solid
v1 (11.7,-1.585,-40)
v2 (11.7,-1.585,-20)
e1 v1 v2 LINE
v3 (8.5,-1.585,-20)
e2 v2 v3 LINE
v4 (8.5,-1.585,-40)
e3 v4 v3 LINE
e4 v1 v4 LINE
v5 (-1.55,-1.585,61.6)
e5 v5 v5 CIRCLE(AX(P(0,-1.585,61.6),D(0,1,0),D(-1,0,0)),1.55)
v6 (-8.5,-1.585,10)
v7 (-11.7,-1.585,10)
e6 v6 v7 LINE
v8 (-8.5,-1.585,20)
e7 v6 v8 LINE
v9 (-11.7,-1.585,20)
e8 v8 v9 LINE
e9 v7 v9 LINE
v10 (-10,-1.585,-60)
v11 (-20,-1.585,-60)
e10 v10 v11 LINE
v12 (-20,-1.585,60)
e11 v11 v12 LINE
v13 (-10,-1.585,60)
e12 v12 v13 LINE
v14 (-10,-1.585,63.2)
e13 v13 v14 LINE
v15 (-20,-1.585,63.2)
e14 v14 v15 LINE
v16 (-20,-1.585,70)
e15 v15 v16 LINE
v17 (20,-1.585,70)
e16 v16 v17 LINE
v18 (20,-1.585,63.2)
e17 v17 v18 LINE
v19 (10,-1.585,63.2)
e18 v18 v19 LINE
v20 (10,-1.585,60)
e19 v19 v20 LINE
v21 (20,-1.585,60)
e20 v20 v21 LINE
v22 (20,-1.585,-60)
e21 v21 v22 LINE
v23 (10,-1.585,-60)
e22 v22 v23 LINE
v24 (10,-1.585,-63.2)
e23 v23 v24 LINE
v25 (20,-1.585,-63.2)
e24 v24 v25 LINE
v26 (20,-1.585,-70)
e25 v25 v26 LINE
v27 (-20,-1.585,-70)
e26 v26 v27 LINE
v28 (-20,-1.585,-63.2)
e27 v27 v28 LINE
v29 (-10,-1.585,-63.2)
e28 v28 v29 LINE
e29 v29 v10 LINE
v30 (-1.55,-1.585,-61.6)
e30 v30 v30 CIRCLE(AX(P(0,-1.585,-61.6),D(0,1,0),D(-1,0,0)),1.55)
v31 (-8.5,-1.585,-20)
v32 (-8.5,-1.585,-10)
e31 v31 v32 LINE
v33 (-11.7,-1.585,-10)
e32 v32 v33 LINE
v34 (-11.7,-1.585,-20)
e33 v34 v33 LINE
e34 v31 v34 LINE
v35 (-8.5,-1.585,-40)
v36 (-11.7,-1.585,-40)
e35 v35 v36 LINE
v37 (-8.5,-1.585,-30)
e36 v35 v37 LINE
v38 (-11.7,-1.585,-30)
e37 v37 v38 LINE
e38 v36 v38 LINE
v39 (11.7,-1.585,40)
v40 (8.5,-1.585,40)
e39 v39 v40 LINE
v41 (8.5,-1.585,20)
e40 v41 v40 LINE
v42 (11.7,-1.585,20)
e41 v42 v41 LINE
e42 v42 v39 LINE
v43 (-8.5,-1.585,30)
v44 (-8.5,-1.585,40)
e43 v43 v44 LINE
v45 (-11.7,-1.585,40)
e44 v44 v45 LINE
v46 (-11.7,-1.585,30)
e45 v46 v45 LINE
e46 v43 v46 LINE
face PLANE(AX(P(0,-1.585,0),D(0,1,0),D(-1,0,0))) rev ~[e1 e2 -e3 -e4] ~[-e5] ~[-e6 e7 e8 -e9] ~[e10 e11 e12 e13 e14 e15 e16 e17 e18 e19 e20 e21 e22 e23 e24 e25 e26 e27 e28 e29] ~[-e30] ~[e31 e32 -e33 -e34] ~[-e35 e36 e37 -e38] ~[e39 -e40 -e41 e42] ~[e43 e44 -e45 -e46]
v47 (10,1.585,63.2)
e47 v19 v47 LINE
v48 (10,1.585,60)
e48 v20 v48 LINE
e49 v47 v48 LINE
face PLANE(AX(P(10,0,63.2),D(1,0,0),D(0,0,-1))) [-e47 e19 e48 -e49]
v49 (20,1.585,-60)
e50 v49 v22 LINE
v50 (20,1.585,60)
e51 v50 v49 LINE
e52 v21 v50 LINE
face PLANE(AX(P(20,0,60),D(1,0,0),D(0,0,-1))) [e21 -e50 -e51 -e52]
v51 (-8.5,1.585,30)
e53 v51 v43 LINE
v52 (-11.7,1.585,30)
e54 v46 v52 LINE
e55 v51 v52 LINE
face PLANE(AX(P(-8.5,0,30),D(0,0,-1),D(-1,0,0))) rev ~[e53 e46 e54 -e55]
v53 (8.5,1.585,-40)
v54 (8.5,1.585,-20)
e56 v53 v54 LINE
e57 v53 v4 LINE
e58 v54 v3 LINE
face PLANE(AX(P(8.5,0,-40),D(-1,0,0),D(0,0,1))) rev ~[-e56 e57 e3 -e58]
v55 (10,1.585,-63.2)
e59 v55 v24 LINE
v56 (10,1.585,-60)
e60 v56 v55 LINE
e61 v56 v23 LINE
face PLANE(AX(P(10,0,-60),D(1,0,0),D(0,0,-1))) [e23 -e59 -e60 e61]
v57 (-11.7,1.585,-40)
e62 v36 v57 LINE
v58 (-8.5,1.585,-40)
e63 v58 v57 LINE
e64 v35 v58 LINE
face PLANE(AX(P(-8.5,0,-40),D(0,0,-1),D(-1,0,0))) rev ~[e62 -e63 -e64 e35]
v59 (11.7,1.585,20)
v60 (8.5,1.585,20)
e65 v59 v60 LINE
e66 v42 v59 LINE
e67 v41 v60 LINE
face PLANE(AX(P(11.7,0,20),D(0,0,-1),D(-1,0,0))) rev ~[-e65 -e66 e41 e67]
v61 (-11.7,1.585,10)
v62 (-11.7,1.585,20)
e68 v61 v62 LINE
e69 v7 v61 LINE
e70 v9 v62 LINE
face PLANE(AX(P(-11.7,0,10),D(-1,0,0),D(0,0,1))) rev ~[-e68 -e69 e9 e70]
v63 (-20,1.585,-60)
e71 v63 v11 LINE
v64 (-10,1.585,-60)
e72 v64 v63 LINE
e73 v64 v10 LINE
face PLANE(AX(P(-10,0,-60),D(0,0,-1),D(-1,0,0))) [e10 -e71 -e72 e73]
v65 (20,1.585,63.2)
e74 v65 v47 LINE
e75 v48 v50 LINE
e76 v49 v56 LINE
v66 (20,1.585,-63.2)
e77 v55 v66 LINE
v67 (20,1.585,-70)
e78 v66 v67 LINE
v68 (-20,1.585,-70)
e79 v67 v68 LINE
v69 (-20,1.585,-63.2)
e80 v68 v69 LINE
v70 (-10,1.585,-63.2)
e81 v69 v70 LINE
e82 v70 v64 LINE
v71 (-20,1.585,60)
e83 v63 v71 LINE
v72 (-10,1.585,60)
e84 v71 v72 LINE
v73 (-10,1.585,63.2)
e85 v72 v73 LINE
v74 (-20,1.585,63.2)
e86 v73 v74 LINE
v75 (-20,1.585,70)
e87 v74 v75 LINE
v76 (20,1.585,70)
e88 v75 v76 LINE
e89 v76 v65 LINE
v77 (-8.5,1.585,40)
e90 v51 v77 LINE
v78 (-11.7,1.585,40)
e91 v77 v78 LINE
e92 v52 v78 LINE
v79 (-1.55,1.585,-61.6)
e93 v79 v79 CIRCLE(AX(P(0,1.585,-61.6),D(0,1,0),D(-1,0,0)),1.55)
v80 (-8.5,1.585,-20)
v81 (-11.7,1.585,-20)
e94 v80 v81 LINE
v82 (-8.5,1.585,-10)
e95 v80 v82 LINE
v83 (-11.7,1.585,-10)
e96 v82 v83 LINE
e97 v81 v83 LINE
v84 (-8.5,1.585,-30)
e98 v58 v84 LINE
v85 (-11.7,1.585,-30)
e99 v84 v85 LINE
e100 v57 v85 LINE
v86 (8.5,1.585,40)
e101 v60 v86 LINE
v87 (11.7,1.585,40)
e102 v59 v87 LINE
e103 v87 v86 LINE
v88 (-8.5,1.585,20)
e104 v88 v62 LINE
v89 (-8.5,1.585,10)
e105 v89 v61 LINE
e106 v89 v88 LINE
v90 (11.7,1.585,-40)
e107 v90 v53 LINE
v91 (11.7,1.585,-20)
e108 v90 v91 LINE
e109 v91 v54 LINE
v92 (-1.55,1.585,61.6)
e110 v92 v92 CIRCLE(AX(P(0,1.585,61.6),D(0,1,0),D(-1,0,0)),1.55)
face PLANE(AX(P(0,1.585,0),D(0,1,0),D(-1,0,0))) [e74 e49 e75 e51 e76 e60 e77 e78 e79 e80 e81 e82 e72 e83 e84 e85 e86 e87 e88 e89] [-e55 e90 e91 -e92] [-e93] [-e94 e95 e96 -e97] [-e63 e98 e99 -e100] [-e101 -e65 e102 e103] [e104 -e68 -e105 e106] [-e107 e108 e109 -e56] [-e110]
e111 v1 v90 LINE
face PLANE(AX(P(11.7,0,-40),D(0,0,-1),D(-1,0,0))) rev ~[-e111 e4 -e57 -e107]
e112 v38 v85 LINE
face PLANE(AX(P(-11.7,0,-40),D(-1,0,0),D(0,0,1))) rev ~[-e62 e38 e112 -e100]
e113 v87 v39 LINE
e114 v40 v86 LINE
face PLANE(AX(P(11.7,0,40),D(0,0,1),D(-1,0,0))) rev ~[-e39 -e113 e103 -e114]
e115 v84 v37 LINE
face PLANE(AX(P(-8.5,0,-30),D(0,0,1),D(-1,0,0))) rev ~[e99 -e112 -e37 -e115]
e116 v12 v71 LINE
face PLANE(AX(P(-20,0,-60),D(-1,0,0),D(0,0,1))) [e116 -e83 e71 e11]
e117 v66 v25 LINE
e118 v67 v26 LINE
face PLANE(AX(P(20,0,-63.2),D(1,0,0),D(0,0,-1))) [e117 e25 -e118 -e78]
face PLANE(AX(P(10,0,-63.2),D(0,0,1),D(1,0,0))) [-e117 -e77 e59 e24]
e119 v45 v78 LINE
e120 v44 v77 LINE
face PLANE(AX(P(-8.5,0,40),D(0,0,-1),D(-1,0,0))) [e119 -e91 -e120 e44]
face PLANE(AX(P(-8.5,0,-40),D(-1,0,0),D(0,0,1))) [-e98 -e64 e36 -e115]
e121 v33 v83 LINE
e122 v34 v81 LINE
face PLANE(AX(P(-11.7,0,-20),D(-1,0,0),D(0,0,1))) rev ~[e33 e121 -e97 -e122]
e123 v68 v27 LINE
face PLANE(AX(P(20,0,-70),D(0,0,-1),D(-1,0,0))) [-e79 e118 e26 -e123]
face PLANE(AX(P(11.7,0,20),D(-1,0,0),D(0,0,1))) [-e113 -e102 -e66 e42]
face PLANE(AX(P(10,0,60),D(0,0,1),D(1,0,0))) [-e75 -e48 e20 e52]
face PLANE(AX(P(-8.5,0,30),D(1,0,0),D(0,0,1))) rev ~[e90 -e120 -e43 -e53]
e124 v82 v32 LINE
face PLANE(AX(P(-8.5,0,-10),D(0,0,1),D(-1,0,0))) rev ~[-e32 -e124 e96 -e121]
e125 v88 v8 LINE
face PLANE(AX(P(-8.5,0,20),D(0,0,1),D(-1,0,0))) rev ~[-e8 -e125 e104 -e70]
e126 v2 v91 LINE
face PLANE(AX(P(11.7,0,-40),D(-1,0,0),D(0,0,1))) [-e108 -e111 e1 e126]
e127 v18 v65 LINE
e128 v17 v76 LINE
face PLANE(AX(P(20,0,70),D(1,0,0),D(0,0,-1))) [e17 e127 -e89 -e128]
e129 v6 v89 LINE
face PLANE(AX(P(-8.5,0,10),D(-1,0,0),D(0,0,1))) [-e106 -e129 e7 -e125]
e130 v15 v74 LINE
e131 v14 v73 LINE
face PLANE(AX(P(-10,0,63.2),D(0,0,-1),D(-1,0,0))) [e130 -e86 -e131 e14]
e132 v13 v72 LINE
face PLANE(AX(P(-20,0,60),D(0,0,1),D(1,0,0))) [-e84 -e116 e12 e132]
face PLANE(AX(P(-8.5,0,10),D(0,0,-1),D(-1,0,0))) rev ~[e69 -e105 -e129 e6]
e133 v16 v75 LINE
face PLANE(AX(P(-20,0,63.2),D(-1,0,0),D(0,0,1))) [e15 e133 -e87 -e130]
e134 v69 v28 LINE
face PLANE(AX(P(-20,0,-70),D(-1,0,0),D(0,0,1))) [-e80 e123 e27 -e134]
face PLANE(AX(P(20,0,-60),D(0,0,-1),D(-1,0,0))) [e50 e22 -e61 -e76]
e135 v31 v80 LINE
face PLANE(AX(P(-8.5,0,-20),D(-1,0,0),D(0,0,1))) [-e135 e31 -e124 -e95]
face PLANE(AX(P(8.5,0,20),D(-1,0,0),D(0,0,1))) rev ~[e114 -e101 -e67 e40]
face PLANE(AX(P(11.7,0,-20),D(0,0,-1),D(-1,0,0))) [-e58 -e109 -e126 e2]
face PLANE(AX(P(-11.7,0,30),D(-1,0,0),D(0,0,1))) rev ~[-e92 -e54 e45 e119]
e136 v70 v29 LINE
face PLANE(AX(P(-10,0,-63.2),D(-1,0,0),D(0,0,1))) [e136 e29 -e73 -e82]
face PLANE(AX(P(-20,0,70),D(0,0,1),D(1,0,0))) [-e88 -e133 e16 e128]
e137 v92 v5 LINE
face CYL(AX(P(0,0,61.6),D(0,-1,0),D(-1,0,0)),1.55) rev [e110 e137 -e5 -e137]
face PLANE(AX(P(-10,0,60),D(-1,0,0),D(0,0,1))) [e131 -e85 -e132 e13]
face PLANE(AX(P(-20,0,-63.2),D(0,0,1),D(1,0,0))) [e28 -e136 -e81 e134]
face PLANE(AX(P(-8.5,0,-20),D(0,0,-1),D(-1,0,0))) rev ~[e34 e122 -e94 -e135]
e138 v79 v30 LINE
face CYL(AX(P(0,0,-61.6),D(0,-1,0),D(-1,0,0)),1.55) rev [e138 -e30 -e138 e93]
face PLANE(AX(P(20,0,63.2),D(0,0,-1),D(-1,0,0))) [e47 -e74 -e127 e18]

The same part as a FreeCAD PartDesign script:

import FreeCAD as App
import Part
import Sketcher
Q = App.Units.Quantity


def add_polygon(sketch, points):
    """Adds a closed chain of lines whose ends are joined by coincident constraints."""
    first, n = sketch.GeometryCount, len(points)
    for a, b in zip(points, points[1:] + points[:1]):
        sketch.addGeometry(Part.LineSegment(App.Vector(*a, 0), App.Vector(*b, 0)), False)
    for i in range(n):
        sketch.addConstraint(Sketcher.Constraint("Coincident", first + i, 2, first + (i + 1) % n, 1))

doc = App.newDocument("Part")
params = doc.addObject("Spreadsheet::Sheet", "Params")
for row, (alias, value) in enumerate([
    ("sketch1_diameter", "3.1 mm"),
    ("sketch1_width", "10 mm"),
    ("sketch1_width2", "40 mm"),
    ("sketch1_height", "120 mm"),
    ("sketch1_height2", "20 mm"),
    ("pad1_length", "3.17 mm"),
], start=1):
    params.set(f"A{row}", alias)
    params.set(f"B{row}", "=" + value)
    params.setAlias(f"B{row}", alias)

body = doc.addObject("PartDesign::Body", "Body")

# Sketch on XZ plane
sketch1 = doc.addObject("Sketcher::SketchObject", "Sketch")
body.addObject(sketch1)
sketch1.AttachmentSupport = (doc.XZ_Plane, [""])
sketch1.MapMode = "FlatFace"
add_polygon(sketch1, [(20, -60), (20, 60), (10, 60), (10, 63.2), (20, 63.2), (20, 70), (-20, 70), (-20, 63.2), (-10, 63.2), (-10, 60), (-20, 60), (-20, -60), (-10, -60), (-10, -63.2), (-20, -63.2), (-20, -70), (20, -70), (20, -63.2), (10, -63.2), (10, -60)])  # lines 0-19
add_polygon(sketch1, [(-8.5, -40), (-11.7, -40), (-11.7, -20), (-8.5, -20)])  # lines 20-23
sketch1.addGeometry(Part.Circle(App.Vector(0, -61.6, 0), App.Vector(0, 0, 1), 1.6), False)  # 24
add_polygon(sketch1, [(11.7, -40), (8.5, -40), (8.5, -30), (11.7, -30)])  # lines 25-28
add_polygon(sketch1, [(11.7, -20), (8.5, -20), (8.5, -10), (11.7, -10)])  # lines 29-32
add_polygon(sketch1, [(-8.5, 20), (-11.7, 20), (-11.7, 40), (-8.5, 40)])  # lines 33-36
add_polygon(sketch1, [(11.7, 10), (8.5, 10), (8.5, 20), (11.7, 20)])  # lines 37-40
sketch1.addGeometry(Part.Circle(App.Vector(0, 61.6, 0), App.Vector(0, 0, 1), 1.6), False)  # 41
add_polygon(sketch1, [(11.7, 30), (8.5, 30), (8.5, 40), (11.7, 40)])  # lines 42-45
sketch1.addConstraint(Sketcher.Constraint("Vertical", 0))
sketch1.addConstraint(Sketcher.Constraint("Horizontal", 1))
sketch1.addConstraint(Sketcher.Constraint("Vertical", 2))
sketch1.addConstraint(Sketcher.Constraint("Horizontal", 3))
sketch1.addConstraint(Sketcher.Constraint("Vertical", 4))
sketch1.addConstraint(Sketcher.Constraint("Horizontal", 5))
sketch1.addConstraint(Sketcher.Constraint("Vertical", 6))
sketch1.addConstraint(Sketcher.Constraint("Horizontal", 7))
sketch1.addConstraint(Sketcher.Constraint("Vertical", 8))
sketch1.addConstraint(Sketcher.Constraint("Horizontal", 9))
sketch1.addConstraint(Sketcher.Constraint("Vertical", 10))
sketch1.addConstraint(Sketcher.Constraint("Horizontal", 11))
sketch1.addConstraint(Sketcher.Constraint("Vertical", 12))
sketch1.addConstraint(Sketcher.Constraint("Horizontal", 13))
sketch1.addConstraint(Sketcher.Constraint("Vertical", 14))
sketch1.addConstraint(Sketcher.Constraint("Horizontal", 15))
sketch1.addConstraint(Sketcher.Constraint("Vertical", 16))
sketch1.addConstraint(Sketcher.Constraint("Horizontal", 17))
sketch1.addConstraint(Sketcher.Constraint("Vertical", 18))
sketch1.addConstraint(Sketcher.Constraint("Horizontal", 19))
sketch1.addConstraint(Sketcher.Constraint("Horizontal", 20))
sketch1.addConstraint(Sketcher.Constraint("Vertical", 21))
sketch1.addConstraint(Sketcher.Constraint("Horizontal", 22))
sketch1.addConstraint(Sketcher.Constraint("Vertical", 23))
sketch1.addConstraint(Sketcher.Constraint("Horizontal", 25))
sketch1.addConstraint(Sketcher.Constraint("Vertical", 26))
sketch1.addConstraint(Sketcher.Constraint("Horizontal", 27))
sketch1.addConstraint(Sketcher.Constraint("Vertical", 28))
sketch1.addConstraint(Sketcher.Constraint("Horizontal", 29))
sketch1.addConstraint(Sketcher.Constraint("Vertical", 30))
sketch1.addConstraint(Sketcher.Constraint("Horizontal", 31))
sketch1.addConstraint(Sketcher.Constraint("Vertical", 32))
sketch1.addConstraint(Sketcher.Constraint("Horizontal", 33))
sketch1.addConstraint(Sketcher.Constraint("Vertical", 34))
sketch1.addConstraint(Sketcher.Constraint("Horizontal", 35))
sketch1.addConstraint(Sketcher.Constraint("Vertical", 36))
sketch1.addConstraint(Sketcher.Constraint("Horizontal", 37))
sketch1.addConstraint(Sketcher.Constraint("Vertical", 38))
sketch1.addConstraint(Sketcher.Constraint("Horizontal", 39))
sketch1.addConstraint(Sketcher.Constraint("Vertical", 40))
sketch1.addConstraint(Sketcher.Constraint("Horizontal", 42))
sketch1.addConstraint(Sketcher.Constraint("Vertical", 43))
sketch1.addConstraint(Sketcher.Constraint("Horizontal", 44))
sketch1.addConstraint(Sketcher.Constraint("Vertical", 45))
sketch1.addConstraint(Sketcher.Constraint("Equal", 24, 41))
sketch1.addConstraint(Sketcher.Constraint("Symmetric", 24, 3, 41, 3, -1, 1))
sketch1.addConstraint(Sketcher.Constraint("Symmetric", 0, 2, 10, 2, -1, 1))
sketch1.addConstraint(Sketcher.Constraint("Symmetric", 2, 2, 12, 2, -1, 1))
sketch1.addConstraint(Sketcher.Constraint("Symmetric", 4, 2, 14, 2, -1, 1))
sketch1.addConstraint(Sketcher.Constraint("Symmetric", 6, 2, 16, 2, -1, 1))
sketch1.addConstraint(Sketcher.Constraint("Symmetric", 8, 2, 18, 2, -1, 1))
sketch1.addConstraint(Sketcher.Constraint("Symmetric", 32, 2, 33, 2, -1, 1))
sketch1.addConstraint(Sketcher.Constraint("Symmetric", 28, 2, 34, 2, -1, 1))
sketch1.addConstraint(Sketcher.Constraint("Symmetric", 22, 2, 38, 2, -1, 1))
sketch1.addConstraint(Sketcher.Constraint("Symmetric", 23, 2, 43, 2, -1, 1))
sketch1.addConstraint(Sketcher.Constraint("Symmetric", 3, 2, 6, 2, -2))
sketch1.addConstraint(Sketcher.Constraint("Symmetric", 1, 2, 8, 2, -2))
sketch1.addConstraint(Sketcher.Constraint("Symmetric", 23, 2, 25, 2, -2))
sketch1.addConstraint(Sketcher.Constraint("Symmetric", 22, 2, 29, 2, -2))
sketch1.addConstraint(Sketcher.Constraint("Symmetric", 31, 2, 40, 2, -1))
sketch1.addConstraint(Sketcher.Constraint("Symmetric", 27, 2, 45, 2, -1))
sketch1.addConstraint(Sketcher.Constraint("PointOnObject", 24, 3, -2))
sketch1.addConstraint(Sketcher.Constraint("Vertical", 0, 2, 3, 2))
sketch1.addConstraint(Sketcher.Constraint("Vertical", 21, 2, 33, 2))
sketch1.addConstraint(Sketcher.Constraint("Vertical", 23, 2, 35, 2))
sketch1.addConstraint(Sketcher.Constraint("Equal", 44, 2))
sketch1.addConstraint(Sketcher.Constraint("Equal", 19, 26))
sketch1.addConstraint(Sketcher.Constraint("Equal", 28, 30))
sketch1.addConstraint(Sketcher.Constraint("Diameter", 24, Q("3.1 mm")))
sketch1.addConstraint(Sketcher.Constraint("DistanceX", 1, 2, 1, 1, Q("10 mm")))
sketch1.addConstraint(Sketcher.Constraint("DistanceX", 5, 2, 5, 1, Q("40 mm")))
sketch1.addConstraint(Sketcher.Constraint("DistanceY", 0, 1, 0, 2, Q("120 mm")))
sketch1.addConstraint(Sketcher.Constraint("DistanceY", 21, 1, 21, 2, Q("20 mm")))
sketch1.addConstraint(Sketcher.Constraint("DistanceX", 20, 2, 20, 1, Q("3.2 mm")))
sketch1.addConstraint(Sketcher.Constraint("DistanceY", 4, 1, 4, 2, Q("6.8 mm")))
sketch1.addConstraint(Sketcher.Constraint("DistanceY", 20, 2, -1, 1, Q("40 mm")))
sketch1.addConstraint(Sketcher.Constraint("DistanceX", 23, 2, 25, 2, Q("17 mm")))
sketch1.addConstraint(Sketcher.Constraint("DistanceY", 24, 3, -1, 1, Q("61.6 mm")))
sketch1.setExpression("Constraints[112]", "Params.sketch1_diameter")
sketch1.setExpression("Constraints[113]", "Params.sketch1_width")
sketch1.setExpression("Constraints[114]", "Params.sketch1_width2")
sketch1.setExpression("Constraints[115]", "Params.sketch1_height")
sketch1.setExpression("Constraints[116]", "Params.sketch1_height2")
pad1 = doc.addObject("PartDesign::Pad", "Pad")
body.addObject(pad1)
pad1.Profile = sketch1
pad1.setExpression("Length", "Params.pad1_length")
pad1.Midplane = True
body2 = doc.addObject("PartDesign::Body", "Body001")
doc.recompute()

body.Placement = App.Placement(App.Vector(0, 0, 0), App.Rotation(App.Vector(0, 0, -1), 180))
boolean = doc.addObject("PartDesign::Boolean", "Boolean")
body2.addObject(boolean)
boolean.Type = "Fuse"
boolean.addObjects([body])

doc.recompute()
